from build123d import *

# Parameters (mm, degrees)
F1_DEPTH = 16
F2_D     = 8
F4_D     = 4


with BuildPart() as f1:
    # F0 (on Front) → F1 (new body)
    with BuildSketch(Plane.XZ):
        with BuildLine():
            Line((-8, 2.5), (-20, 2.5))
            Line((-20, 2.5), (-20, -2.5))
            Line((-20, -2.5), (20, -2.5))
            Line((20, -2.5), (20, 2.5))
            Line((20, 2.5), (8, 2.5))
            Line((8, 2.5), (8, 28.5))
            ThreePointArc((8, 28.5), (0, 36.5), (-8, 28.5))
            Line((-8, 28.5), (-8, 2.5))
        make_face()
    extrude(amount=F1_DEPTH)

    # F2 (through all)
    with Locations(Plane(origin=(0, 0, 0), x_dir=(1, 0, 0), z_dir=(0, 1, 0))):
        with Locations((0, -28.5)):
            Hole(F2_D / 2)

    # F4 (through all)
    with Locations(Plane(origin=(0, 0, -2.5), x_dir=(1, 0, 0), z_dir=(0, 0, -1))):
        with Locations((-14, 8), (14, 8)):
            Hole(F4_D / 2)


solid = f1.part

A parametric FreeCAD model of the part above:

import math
import FreeCAD as App
import Part
import Sketcher

V = App.Vector
Q = App.Units.Quantity

doc = App.newDocument("Part")
body = doc.addObject("PartDesign::Body", "Body")

# Sketch on XZ plane
sketch1 = body.newObject("Sketcher::SketchObject", "Sketch")
sketch1.AttachmentSupport = (doc.getObject("XZ_Plane"), [""])
sketch1.MapMode = "FlatFace"
sketch1.addGeometry(Part.LineSegment(V(-8, 2, 0), V(-20, 2, 0)), False)
sketch1.addGeometry(Part.LineSegment(V(-20, 2, 0), V(-20, -2, 0)), False)
sketch1.addGeometry(Part.LineSegment(V(-20, -2, 0), V(20, -2, 0)), False)
sketch1.addGeometry(Part.LineSegment(V(20, -2, 0), V(20, 2, 0)), False)
sketch1.addGeometry(Part.LineSegment(V(20, 2, 0), V(8, 2, 0)), False)
sketch1.addGeometry(Part.LineSegment(V(8, 2, 0), V(8, 28, 0)), False)
sketch1.addGeometry(Part.ArcOfCircle(Part.Circle(V(0, 28, 0), V(0, 0, 1), 8), math.radians(0), math.radians(180)), False)
sketch1.addGeometry(Part.LineSegment(V(-8, 28, 0), V(-8, 2, 0)), False)
sketch1.addConstraint(Sketcher.Constraint("Coincident", 0, 2, 1, 1))
sketch1.addConstraint(Sketcher.Constraint("Coincident", 1, 2, 2, 1))
sketch1.addConstraint(Sketcher.Constraint("Coincident", 2, 2, 3, 1))
sketch1.addConstraint(Sketcher.Constraint("Coincident", 3, 2, 4, 1))
sketch1.addConstraint(Sketcher.Constraint("Coincident", 4, 2, 5, 1))
sketch1.addConstraint(Sketcher.Constraint("Tangent", 5, 2, 6, 1))
sketch1.addConstraint(Sketcher.Constraint("Tangent", 6, 2, 7, 1))
sketch1.addConstraint(Sketcher.Constraint("Coincident", 7, 2, 0, 1))
sketch1.addConstraint(Sketcher.Constraint("Horizontal", 0))
sketch1.addConstraint(Sketcher.Constraint("Vertical", 1))
sketch1.addConstraint(Sketcher.Constraint("Horizontal", 2))
sketch1.addConstraint(Sketcher.Constraint("Vertical", 3))
sketch1.addConstraint(Sketcher.Constraint("Horizontal", 4))
sketch1.addConstraint(Sketcher.Constraint("Vertical", 5))
sketch1.addConstraint(Sketcher.Constraint("Vertical", 7))
sketch1.addConstraint(Sketcher.Constraint("Symmetric", 0, 2, 2, 2, -1, 1))
sketch1.addConstraint(Sketcher.Constraint("Symmetric", 4, 2, 7, 2, -2))
sketch1.addConstraint(Sketcher.Constraint("Radius", 6, Q("8 mm")))
sketch1.addConstraint(Sketcher.Constraint("DistanceX", 0, 2, 0, 1, Q("12 mm")))
sketch1.addConstraint(Sketcher.Constraint("DistanceY", 1, 2, 1, 1, Q("5 mm")))
sketch1.addConstraint(Sketcher.Constraint("DistanceY", 5, 1, 5, 2, Q("26 mm")))
pad1 = body.newObject("PartDesign::Pad", "Pad")
pad1.Profile = sketch1
pad1.Length = 16

# Sketch on XZ plane
sketch2 = body.newObject("Sketcher::SketchObject", "Sketch001")
sketch2.AttachmentSupport = (doc.getObject("XZ_Plane"), [""])
sketch2.MapMode = "FlatFace"
sketch2.addGeometry(Part.Circle(V(0, 28.5, 0), V(0, 0, 1), 4), False)
sketch2.addConstraint(Sketcher.Constraint("PointOnObject", 0, 3, -2))
sketch2.addConstraint(Sketcher.Constraint("Diameter", 0, Q("8 mm")))
sketch2.addConstraint(Sketcher.Constraint("DistanceY", -1, 1, 0, 3, Q("28.5 mm")))
doc.recompute()
hole = body.newObject("PartDesign::Hole", "Hole")
hole.Profile = sketch2
hole.ThreadType = "None"
hole.Diameter = 8
hole.DepthType = "ThroughAll"
hole.Reversed = True

# Sketch on XY plane
sketch3 = body.newObject("Sketcher::SketchObject", "Sketch002")
sketch3.AttachmentSupport = (doc.getObject("XY_Plane"), [""])
sketch3.MapMode = "FlatFace"
sketch3.AttachmentOffset = App.Placement(V(0, 0, -2.5), App.Rotation())
sketch3.addGeometry(Part.Circle(V(-14, -8, 0), V(0, 0, 1), 2), False)
sketch3.addGeometry(Part.Circle(V(14, -8, 0), V(0, 0, 1), 2), False)
sketch3.addConstraint(Sketcher.Constraint("Equal", 0, 1))
sketch3.addConstraint(Sketcher.Constraint("Symmetric", 0, 3, 1, 3, -2))
sketch3.addConstraint(Sketcher.Constraint("Diameter", 0, Q("4 mm")))
sketch3.addConstraint(Sketcher.Constraint("DistanceX", 0, 3, -1, 1, Q("14 mm")))
sketch3.addConstraint(Sketcher.Constraint("DistanceY", 0, 3, -1, 1, Q("8 mm")))
doc.recompute()
hole2 = body.newObject("PartDesign::Hole", "Hole001")
hole2.Profile = sketch3
hole2.ThreadType = "None"
hole2.Diameter = 4
hole2.DepthType = "ThroughAll"
hole2.Reversed = True

doc.recompute()
